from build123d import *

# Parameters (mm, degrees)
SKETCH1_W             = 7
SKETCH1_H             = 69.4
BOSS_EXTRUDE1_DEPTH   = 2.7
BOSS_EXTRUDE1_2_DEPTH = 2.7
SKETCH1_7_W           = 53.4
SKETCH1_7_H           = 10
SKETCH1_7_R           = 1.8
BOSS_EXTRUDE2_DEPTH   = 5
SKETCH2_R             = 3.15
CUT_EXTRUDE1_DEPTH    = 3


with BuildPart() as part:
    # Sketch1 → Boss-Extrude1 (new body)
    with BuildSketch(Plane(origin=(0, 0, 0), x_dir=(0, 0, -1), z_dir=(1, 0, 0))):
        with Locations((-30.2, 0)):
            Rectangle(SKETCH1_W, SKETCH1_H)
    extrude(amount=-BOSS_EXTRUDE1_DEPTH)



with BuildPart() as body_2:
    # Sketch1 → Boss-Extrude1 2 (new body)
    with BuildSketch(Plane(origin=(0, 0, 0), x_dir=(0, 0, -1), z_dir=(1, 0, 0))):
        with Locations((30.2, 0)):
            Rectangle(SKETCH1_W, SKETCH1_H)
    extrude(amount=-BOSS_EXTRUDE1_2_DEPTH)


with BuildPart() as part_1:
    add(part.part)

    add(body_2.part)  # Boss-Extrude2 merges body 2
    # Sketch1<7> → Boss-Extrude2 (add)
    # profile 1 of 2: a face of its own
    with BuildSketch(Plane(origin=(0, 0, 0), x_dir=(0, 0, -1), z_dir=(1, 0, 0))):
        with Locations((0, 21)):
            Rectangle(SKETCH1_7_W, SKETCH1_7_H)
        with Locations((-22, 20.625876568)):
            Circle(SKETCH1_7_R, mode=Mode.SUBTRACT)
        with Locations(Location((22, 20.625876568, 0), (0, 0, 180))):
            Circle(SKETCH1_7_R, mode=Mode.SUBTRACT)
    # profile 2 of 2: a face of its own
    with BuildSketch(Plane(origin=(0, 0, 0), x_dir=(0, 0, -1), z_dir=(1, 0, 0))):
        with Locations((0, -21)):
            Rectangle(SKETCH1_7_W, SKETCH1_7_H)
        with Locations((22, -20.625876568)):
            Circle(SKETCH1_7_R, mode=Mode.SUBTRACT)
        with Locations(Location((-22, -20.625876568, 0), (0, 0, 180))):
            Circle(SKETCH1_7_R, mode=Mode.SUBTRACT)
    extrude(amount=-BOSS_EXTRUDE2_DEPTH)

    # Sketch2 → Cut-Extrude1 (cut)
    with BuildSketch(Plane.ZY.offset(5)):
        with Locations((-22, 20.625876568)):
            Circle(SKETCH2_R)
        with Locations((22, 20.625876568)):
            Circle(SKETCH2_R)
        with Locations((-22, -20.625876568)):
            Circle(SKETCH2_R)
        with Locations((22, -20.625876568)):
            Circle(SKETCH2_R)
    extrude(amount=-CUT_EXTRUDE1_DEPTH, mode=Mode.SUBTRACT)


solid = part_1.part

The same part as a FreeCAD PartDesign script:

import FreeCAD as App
import Part
import Sketcher

V = App.Vector

doc = App.newDocument("Part")
body = doc.addObject("PartDesign::Body", "Body")

# Sketch on YZ plane
sketch1 = doc.addObject("Sketcher::SketchObject", "Sketch")
body.addObject(sketch1)
sketch1.AttachmentSupport = (doc.YZ_Plane, [""])
sketch1.MapMode = "FlatFace"
sketch1.addGeometry([
    Part.LineSegment(V(35, 34, 0), V(-35, 34, 0)),
    Part.LineSegment(V(-35, 34, 0), V(-35, 27, 0)),
    Part.LineSegment(V(-35, 27, 0), V(35, 27, 0)),
    Part.LineSegment(V(35, 27, 0), V(35, 34, 0)),
], False)
sketch1.addConstraint([
    Sketcher.Constraint("Coincident", 0, 2, 1, 1),
    Sketcher.Constraint("Coincident", 1, 2, 2, 1),
    Sketcher.Constraint("Coincident", 2, 2, 3, 1),
    Sketcher.Constraint("Coincident", 3, 2, 0, 1),
    Sketcher.Constraint("Horizontal", 0),
    Sketcher.Constraint("Vertical", 1),
    Sketcher.Constraint("Horizontal", 2),
    Sketcher.Constraint("Vertical", 3),
    Sketcher.Constraint("DistanceY", 1, 2, 1, 1, 7.0),
    Sketcher.Constraint("DistanceX", 0, 2, 0, 1, 69.4),
    Sketcher.Constraint("DistanceX", 0, 2, -1, 1, 34.7),
    Sketcher.Constraint("DistanceY", -1, 1, 0, 2, 33.7),
])
pad1 = doc.addObject("PartDesign::Pad", "Pad")
body.addObject(pad1)
pad1.Profile = sketch1
pad1.Length = 2.7
pad1.Reversed = True
body2 = doc.addObject("PartDesign::Body", "Body001")

# Sketch on YZ plane
sketch2 = doc.addObject("Sketcher::SketchObject", "Sketch001")
body2.addObject(sketch2)
sketch2.AttachmentSupport = (doc.getObject("YZ_Plane001"), [""])
sketch2.MapMode = "FlatFace"
sketch2.addGeometry([
    Part.LineSegment(V(35, -27, 0), V(-35, -27, 0)),
    Part.LineSegment(V(-35, -27, 0), V(-35, -34, 0)),
    Part.LineSegment(V(-35, -34, 0), V(35, -34, 0)),
    Part.LineSegment(V(35, -34, 0), V(35, -27, 0)),
], False)
sketch2.addConstraint([
    Sketcher.Constraint("Coincident", 0, 2, 1, 1),
    Sketcher.Constraint("Coincident", 1, 2, 2, 1),
    Sketcher.Constraint("Coincident", 2, 2, 3, 1),
    Sketcher.Constraint("Coincident", 3, 2, 0, 1),
    Sketcher.Constraint("Horizontal", 0),
    Sketcher.Constraint("Vertical", 1),
    Sketcher.Constraint("Horizontal", 2),
    Sketcher.Constraint("Vertical", 3),
    Sketcher.Constraint("DistanceY", 1, 2, 1, 1, 7.0),
    Sketcher.Constraint("DistanceX", 0, 2, 0, 1, 69.4),
    Sketcher.Constraint("DistanceX", 0, 2, -1, 1, 34.7),
    Sketcher.Constraint("DistanceY", 0, 2, -1, 1, 26.7),
])
pad2 = doc.addObject("PartDesign::Pad", "Pad001")
body2.addObject(pad2)
pad2.Profile = sketch2
pad2.Length = 2.7
pad2.Reversed = True
body.AllowCompound = True
doc.recompute()

boolean = doc.addObject("PartDesign::Boolean", "Boolean")
body.addObject(boolean)
boolean.Type = "Fuse"
boolean.addObjects([body2])

# Sketch on YZ plane
sketch3 = doc.addObject("Sketcher::SketchObject", "Sketch002")
body.addObject(sketch3)
sketch3.AttachmentSupport = (doc.YZ_Plane, [""])
sketch3.MapMode = "FlatFace"
sketch3.addGeometry([
    Part.LineSegment(V(26, 26.7, 0), V(16, 26.7, 0)),  # 0
    Part.LineSegment(V(16, 26.7, 0), V(16, -26.7, 0)),  # 1
    Part.LineSegment(V(16, -26.7, 0), V(26, -26.7, 0)),  # 2
    Part.LineSegment(V(26, -26.7, 0), V(26, 26.7, 0)),  # 3
    Part.Circle(V(20.6, 22, 0), V(0, 0, 1), 1.8),  # 4
    Part.Circle(V(20.6, -22, 0), V(0, 0, 1), 1.8),  # 5
    Part.LineSegment(V(-16, 26.7, 0), V(-26, 26.7, 0)),  # 6
    Part.LineSegment(V(-26, 26.7, 0), V(-26, -26.7, 0)),  # 7
    Part.LineSegment(V(-26, -26.7, 0), V(-16, -26.7, 0)),  # 8
    Part.LineSegment(V(-16, -26.7, 0), V(-16, 26.7, 0)),  # 9
    Part.Circle(V(-20.6, 22, 0), V(0, 0, 1), 1.8),  # 10
    Part.Circle(V(-20.6, -22, 0), V(0, 0, 1), 1.8),  # 11
], False)
sketch3.addConstraint([
    Sketcher.Constraint("Coincident", 0, 2, 1, 1),
    Sketcher.Constraint("Coincident", 1, 2, 2, 1),
    Sketcher.Constraint("Coincident", 2, 2, 3, 1),
    Sketcher.Constraint("Coincident", 3, 2, 0, 1),
    Sketcher.Constraint("Coincident", 6, 2, 7, 1),
    Sketcher.Constraint("Coincident", 7, 2, 8, 1),
    Sketcher.Constraint("Coincident", 8, 2, 9, 1),
    Sketcher.Constraint("Coincident", 9, 2, 6, 1),
    Sketcher.Constraint("Horizontal", 0),
    Sketcher.Constraint("Vertical", 1),
    Sketcher.Constraint("Horizontal", 2),
    Sketcher.Constraint("Vertical", 3),
    Sketcher.Constraint("Horizontal", 6),
    Sketcher.Constraint("Vertical", 7),
    Sketcher.Constraint("Horizontal", 8),
    Sketcher.Constraint("Vertical", 9),
    Sketcher.Constraint("Equal", 4, 5),
    Sketcher.Constraint("Equal", 5, 10),
    Sketcher.Constraint("Equal", 10, 11),
    Sketcher.Constraint("Symmetric", 5, 3, 10, 3, -1, 1),
    Sketcher.Constraint("Symmetric", 4, 3, 11, 3, -1, 1),
    Sketcher.Constraint("Symmetric", 2, 2, 6, 2, -1, 1),
    Sketcher.Constraint("Symmetric", 0, 2, 8, 2, -1, 1),
    Sketcher.Constraint("Symmetric", 4, 3, 10, 3, -2),
    Sketcher.Constraint("Horizontal", 3, 2, 6, 2),
    Sketcher.Constraint("Diameter", 4, 3.6),
    Sketcher.Constraint("DistanceX", 0, 2, 0, 1, 10.0),
    Sketcher.Constraint("DistanceY", 1, 2, 1, 1, 53.4),
    Sketcher.Constraint("DistanceY", -1, 1, 4, 3, 22.0),
    Sketcher.Constraint("DistanceX", -1, 1, 0, 2, 16.0),
    Sketcher.Constraint("DistanceX", -1, 1, 4, 3, 20.625877),
])
pad3 = doc.addObject("PartDesign::Pad", "Pad002")
body.addObject(pad3)
pad3.Profile = sketch3
pad3.Length = 5
pad3.Reversed = True

# Sketch on YZ plane
sketch4 = doc.addObject("Sketcher::SketchObject", "Sketch003")
body.addObject(sketch4)
sketch4.AttachmentSupport = (doc.YZ_Plane, [""])
sketch4.MapMode = "FlatFace"
sketch4.AttachmentOffset = App.Placement(V(0, 0, -5), App.Rotation())
sketch4.addGeometry([
    Part.Circle(V(20.6, -22, 0), V(0, 0, 1), 3.1),
    Part.Circle(V(20.6, 22, 0), V(0, 0, 1), 3.1),
    Part.Circle(V(-20.6, -22, 0), V(0, 0, 1), 3.1),
    Part.Circle(V(-20.6, 22, 0), V(0, 0, 1), 3.1),
], False)
sketch4.addConstraint([
    Sketcher.Constraint("Equal", 0, 1),
    Sketcher.Constraint("Equal", 1, 2),
    Sketcher.Constraint("Equal", 2, 3),
    Sketcher.Constraint("Symmetric", 1, 3, 2, 3, -1, 1),
    Sketcher.Constraint("Symmetric", 0, 3, 3, 3, -1, 1),
    Sketcher.Constraint("Symmetric", 0, 3, 2, 3, -2),
    Sketcher.Constraint("Diameter", 0, 6.3),
    Sketcher.Constraint("DistanceY", 0, 3, -1, 1, 22.0),
    Sketcher.Constraint("DistanceX", -1, 1, 0, 3, 20.625877),
])
pocket1 = doc.addObject("PartDesign::Pocket", "Pocket")
body.addObject(pocket1)
pocket1.Profile = sketch4
pocket1.Length = 3
pocket1.Reversed = True

doc.recompute()
